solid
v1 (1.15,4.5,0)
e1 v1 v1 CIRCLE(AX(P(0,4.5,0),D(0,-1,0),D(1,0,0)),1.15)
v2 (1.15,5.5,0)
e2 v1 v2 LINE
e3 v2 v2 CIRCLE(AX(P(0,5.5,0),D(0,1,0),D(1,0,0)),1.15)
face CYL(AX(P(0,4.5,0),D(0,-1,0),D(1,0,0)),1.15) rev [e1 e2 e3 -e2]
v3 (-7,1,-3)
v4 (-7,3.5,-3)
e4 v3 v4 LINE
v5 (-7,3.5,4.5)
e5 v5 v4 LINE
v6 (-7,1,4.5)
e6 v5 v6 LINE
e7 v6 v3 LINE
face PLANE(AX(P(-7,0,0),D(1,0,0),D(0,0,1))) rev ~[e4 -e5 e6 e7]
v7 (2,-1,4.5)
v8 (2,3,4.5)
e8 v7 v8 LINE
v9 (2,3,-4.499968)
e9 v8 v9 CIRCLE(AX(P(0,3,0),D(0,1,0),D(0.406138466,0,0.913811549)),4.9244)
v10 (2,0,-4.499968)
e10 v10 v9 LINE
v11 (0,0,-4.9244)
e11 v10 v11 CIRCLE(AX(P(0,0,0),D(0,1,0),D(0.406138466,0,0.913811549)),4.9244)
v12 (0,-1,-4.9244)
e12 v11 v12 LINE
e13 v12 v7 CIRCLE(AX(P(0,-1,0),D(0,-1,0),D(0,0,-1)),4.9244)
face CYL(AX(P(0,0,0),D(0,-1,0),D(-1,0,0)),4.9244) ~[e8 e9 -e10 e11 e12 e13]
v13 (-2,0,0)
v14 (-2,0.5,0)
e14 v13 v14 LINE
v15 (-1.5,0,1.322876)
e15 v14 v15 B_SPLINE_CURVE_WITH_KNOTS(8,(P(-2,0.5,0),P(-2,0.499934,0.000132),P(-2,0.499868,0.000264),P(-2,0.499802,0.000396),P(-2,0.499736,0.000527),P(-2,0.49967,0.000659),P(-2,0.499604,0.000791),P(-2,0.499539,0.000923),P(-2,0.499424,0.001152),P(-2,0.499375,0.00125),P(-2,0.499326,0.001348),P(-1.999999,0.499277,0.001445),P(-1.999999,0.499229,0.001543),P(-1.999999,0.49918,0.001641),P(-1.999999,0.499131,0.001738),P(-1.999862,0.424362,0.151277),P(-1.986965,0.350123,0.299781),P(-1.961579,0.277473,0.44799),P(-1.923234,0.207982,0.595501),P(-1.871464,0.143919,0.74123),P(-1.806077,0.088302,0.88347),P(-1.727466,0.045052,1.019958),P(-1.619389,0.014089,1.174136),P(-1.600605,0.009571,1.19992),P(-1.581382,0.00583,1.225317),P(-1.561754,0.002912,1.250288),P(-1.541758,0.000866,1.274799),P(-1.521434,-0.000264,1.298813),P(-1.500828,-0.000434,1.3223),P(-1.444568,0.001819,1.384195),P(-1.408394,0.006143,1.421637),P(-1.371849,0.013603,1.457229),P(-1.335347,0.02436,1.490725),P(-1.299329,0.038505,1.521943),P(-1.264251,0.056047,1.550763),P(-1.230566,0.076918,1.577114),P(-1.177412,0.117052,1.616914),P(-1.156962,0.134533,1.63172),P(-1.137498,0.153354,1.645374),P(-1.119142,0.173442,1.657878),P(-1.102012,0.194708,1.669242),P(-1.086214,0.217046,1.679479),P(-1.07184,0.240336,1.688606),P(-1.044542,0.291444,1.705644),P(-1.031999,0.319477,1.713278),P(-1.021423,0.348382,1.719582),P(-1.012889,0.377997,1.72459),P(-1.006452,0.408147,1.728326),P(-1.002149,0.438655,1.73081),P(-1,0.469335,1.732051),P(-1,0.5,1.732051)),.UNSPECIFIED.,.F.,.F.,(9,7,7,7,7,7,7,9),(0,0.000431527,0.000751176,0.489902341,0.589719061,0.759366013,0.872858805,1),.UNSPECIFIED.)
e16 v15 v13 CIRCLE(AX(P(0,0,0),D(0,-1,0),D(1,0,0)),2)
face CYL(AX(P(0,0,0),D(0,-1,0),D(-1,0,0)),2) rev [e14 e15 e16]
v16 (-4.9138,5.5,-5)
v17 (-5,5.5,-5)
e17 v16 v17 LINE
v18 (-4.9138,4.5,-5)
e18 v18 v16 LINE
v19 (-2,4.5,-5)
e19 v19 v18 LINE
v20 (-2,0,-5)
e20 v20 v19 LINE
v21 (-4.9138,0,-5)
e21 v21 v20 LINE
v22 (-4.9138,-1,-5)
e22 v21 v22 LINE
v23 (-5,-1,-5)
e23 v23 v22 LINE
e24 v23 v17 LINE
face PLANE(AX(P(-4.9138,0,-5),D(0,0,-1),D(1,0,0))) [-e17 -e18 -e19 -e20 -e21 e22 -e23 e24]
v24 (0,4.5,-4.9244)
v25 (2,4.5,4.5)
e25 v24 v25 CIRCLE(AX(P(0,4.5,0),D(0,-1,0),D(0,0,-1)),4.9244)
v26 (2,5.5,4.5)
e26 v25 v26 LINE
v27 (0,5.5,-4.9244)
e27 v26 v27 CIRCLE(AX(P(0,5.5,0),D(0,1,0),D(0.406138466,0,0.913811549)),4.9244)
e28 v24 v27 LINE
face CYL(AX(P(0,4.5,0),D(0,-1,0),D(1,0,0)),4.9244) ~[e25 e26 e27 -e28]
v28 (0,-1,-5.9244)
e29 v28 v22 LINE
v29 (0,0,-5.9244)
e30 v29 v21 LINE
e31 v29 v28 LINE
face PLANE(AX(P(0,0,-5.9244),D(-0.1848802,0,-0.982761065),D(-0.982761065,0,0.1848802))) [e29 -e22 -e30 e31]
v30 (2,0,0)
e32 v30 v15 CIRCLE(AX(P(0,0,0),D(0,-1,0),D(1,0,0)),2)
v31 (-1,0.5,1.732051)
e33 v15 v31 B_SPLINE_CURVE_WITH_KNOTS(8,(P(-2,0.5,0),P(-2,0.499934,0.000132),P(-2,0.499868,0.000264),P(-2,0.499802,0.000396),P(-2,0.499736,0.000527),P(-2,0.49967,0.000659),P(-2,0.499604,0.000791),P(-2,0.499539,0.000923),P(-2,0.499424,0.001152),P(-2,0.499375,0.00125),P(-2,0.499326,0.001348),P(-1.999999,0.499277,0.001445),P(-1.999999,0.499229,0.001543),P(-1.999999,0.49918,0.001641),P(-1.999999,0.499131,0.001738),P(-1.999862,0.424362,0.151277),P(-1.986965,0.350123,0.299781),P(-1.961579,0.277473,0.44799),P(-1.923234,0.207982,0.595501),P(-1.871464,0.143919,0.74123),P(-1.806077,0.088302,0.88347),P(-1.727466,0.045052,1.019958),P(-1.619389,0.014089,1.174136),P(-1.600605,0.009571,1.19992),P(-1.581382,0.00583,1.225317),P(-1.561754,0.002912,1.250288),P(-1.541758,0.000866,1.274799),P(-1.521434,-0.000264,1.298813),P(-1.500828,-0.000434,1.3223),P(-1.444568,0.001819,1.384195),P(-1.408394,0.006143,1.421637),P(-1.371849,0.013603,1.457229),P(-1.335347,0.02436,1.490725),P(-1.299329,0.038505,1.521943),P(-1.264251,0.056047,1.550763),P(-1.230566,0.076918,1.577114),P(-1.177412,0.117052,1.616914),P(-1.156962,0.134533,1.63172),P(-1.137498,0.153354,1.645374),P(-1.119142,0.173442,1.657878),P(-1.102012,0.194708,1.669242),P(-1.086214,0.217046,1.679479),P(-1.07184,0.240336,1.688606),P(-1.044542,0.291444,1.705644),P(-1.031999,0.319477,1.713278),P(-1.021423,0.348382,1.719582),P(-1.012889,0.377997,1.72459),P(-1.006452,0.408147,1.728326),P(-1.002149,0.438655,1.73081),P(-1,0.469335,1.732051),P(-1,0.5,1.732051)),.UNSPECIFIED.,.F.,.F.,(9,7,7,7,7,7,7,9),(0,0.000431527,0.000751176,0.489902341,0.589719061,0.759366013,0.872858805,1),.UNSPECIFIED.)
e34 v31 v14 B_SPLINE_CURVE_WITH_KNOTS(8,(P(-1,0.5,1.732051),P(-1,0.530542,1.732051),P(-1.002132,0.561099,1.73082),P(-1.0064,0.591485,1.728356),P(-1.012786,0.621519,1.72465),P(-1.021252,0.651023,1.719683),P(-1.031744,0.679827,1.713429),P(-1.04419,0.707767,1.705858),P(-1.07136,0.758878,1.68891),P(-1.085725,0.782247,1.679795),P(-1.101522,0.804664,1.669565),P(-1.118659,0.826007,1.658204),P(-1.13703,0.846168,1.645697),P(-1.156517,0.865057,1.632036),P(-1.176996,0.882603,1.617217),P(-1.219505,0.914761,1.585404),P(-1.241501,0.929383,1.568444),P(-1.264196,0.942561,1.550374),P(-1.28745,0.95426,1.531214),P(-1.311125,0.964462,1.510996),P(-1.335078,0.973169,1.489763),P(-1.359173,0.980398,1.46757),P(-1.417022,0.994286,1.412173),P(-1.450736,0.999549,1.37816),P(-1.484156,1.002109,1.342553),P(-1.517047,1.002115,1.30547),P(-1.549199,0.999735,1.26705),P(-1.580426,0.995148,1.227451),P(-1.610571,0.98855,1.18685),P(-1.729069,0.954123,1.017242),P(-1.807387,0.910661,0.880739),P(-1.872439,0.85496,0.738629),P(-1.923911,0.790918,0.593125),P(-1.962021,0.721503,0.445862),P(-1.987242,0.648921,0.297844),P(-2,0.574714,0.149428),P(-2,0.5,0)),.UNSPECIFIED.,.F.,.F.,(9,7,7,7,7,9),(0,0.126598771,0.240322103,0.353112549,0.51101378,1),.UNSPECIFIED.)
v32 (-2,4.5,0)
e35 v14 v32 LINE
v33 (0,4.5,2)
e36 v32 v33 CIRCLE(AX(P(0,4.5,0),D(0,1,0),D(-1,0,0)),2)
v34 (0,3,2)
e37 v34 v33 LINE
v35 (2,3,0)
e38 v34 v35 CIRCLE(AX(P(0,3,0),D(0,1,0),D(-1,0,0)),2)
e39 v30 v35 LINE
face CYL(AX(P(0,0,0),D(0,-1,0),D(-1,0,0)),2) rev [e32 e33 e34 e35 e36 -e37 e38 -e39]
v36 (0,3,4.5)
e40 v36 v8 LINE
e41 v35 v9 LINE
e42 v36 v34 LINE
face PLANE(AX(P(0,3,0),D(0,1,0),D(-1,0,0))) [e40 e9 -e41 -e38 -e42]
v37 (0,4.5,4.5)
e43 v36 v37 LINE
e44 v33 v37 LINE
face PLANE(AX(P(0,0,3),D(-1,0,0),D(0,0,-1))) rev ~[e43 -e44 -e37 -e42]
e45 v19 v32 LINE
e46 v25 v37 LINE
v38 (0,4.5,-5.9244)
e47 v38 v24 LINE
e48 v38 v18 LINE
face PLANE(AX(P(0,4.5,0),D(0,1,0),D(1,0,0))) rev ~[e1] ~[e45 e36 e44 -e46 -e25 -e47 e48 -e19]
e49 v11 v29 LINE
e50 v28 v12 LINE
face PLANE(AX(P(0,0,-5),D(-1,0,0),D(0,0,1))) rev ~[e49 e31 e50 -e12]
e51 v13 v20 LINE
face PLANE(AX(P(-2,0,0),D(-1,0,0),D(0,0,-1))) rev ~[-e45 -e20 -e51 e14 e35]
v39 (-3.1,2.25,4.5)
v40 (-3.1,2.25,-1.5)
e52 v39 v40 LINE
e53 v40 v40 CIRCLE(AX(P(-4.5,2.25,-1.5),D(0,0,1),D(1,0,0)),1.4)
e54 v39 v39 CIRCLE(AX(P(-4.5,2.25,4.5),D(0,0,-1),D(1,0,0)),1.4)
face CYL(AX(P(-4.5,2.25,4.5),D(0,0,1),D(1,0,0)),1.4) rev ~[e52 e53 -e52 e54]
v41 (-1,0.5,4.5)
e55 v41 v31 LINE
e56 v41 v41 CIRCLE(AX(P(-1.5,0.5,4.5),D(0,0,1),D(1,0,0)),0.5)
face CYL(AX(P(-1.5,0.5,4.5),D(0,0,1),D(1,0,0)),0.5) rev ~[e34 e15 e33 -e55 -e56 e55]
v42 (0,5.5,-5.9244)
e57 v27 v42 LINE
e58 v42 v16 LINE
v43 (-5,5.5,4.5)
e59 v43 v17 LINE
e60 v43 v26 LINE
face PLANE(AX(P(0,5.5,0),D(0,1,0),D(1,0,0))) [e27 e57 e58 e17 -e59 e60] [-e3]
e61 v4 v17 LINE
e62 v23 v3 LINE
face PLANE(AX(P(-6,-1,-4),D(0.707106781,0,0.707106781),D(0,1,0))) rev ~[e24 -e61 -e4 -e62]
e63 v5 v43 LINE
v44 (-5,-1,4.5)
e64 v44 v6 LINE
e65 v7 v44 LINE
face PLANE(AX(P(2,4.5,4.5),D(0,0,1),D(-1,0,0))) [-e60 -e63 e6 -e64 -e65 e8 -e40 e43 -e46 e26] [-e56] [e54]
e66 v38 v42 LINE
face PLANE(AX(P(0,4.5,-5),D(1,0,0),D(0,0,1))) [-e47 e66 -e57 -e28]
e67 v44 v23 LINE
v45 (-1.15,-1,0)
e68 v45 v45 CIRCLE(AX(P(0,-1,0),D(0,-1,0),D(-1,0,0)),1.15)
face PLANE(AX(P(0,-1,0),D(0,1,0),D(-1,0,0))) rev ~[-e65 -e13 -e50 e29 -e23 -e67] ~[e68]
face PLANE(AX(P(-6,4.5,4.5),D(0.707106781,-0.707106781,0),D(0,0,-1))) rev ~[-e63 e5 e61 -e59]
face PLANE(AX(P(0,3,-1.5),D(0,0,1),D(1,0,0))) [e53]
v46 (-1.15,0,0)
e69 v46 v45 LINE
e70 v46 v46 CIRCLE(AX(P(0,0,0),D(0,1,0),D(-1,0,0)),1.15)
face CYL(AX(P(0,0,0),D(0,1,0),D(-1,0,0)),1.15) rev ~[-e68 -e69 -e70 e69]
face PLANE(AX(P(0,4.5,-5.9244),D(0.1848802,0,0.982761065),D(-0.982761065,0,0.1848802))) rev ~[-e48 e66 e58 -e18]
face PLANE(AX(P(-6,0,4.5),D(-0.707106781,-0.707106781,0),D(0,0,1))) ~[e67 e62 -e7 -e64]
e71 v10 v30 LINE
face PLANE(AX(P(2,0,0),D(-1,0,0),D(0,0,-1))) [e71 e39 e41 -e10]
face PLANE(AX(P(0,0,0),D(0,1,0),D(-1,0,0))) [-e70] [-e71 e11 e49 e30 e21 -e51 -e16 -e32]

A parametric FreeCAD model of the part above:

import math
import FreeCAD as App
import Part
import Sketcher

V = App.Vector
Q = App.Units.Quantity


def edges_at(feature, points):
    """Names of the edges that pass closest to the given points."""
    edges = feature.Shape.Edges
    near = lambda p: min(range(len(edges)), key=lambda i: edges[i].distToShape(Part.Vertex(*p))[0])
    return sorted({f"Edge{near(p) + 1}" for p in points})

doc = App.newDocument("Part")
params = doc.addObject("Spreadsheet::Sheet", "Params")
for row, (alias, value) in enumerate([
    ("sketch1_radius", "2 mm"),
    ("sketch1_width", "5 mm"),
    ("pad1_length", "4.5 mm"),
    ("sketch2_radius", "2 mm"),
    ("sketch2_height", "4.5 mm"),
    ("pad2_length", "3 mm"),
    ("sketch3_diameter", "2.3 mm"),
    ("sketch3_height", "1 mm"),
    ("sketch3_length", "5 mm"),
    ("sketch3_width", "9 mm"),
    ("pad3_length", "1 mm"),
    ("sketch4_length", "5 mm"),
    ("sketch4_diameter", "2.3 mm"),
    ("sketch4_width", "9 mm"),
    ("sketch4_height", "1 mm"),
    ("sketch4_height2", "9.5 mm"),
    ("pad4_length", "1 mm"),
    ("sketch5_diameter", "1 mm"),
    ("sketch5_diameter2", "2.8 mm"),
    ("pocket1_length", "6 mm"),
    ("chamfer_size", "2 mm"),
], start=1):
    params.set(f"A{row}", alias)
    params.set(f"B{row}", "=" + value)
    params.setAlias(f"B{row}", alias)

body = doc.addObject("PartDesign::Body", "Body")

# Sketch on XZ plane
sketch1 = body.newObject("Sketcher::SketchObject", "Sketch")
sketch1.AttachmentSupport = (doc.getObject("XZ_Plane"), [""])
sketch1.MapMode = "FlatFace"
sketch1.addGeometry(Part.ArcOfCircle(Part.Circle(V(0, 0, 0), V(0, 0, 1), 2), math.radians(90), math.radians(180)), False)
sketch1.addGeometry(Part.LineSegment(V(-2, 0, 0), V(-2, -5, 0)), False)
sketch1.addGeometry(Part.LineSegment(V(-2, -5, 0), V(-7, -5, 0)), False)
sketch1.addGeometry(Part.LineSegment(V(-7, -5, 0), V(-7, 4.5, 0)), False)
sketch1.addGeometry(Part.LineSegment(V(-7, 4.5, 0), V(0, 4.5, 0)), False)
sketch1.addGeometry(Part.LineSegment(V(0, 4.5, 0), V(0, 2, 0)), False)
sketch1.addConstraint(Sketcher.Constraint("Tangent", 0, 2, 1, 1))
sketch1.addConstraint(Sketcher.Constraint("Coincident", 1, 2, 2, 1))
sketch1.addConstraint(Sketcher.Constraint("Coincident", 2, 2, 3, 1))
sketch1.addConstraint(Sketcher.Constraint("Coincident", 3, 2, 4, 1))
sketch1.addConstraint(Sketcher.Constraint("Coincident", 4, 2, 5, 1))
sketch1.addConstraint(Sketcher.Constraint("Coincident", 5, 2, 0, 1))
sketch1.addConstraint(Sketcher.Constraint("Vertical", 1))
sketch1.addConstraint(Sketcher.Constraint("Horizontal", 2))
sketch1.addConstraint(Sketcher.Constraint("Vertical", 3))
sketch1.addConstraint(Sketcher.Constraint("Horizontal", 4))
sketch1.addConstraint(Sketcher.Constraint("Vertical", 5))
sketch1.addConstraint(Sketcher.Constraint("Coincident", 0, 3, -1, 1))
sketch1.addConstraint(Sketcher.Constraint("PointOnObject", 4, 2, -2))
sketch1.addConstraint(Sketcher.Constraint("Equal", 2, 1))
sketch1.addConstraint(Sketcher.Constraint("Radius", 0, Q("2 mm")))
sketch1.addConstraint(Sketcher.Constraint("DistanceX", 2, 2, 2, 1, Q("5 mm")))
sketch1.addConstraint(Sketcher.Constraint("DistanceY", -1, 1, 3, 2, Q("4.5 mm")))
sketch1.setExpression("Constraints[14]", "Params.sketch1_radius")
sketch1.setExpression("Constraints[15]", "Params.sketch1_width")
pad1 = body.newObject("PartDesign::Pad", "Pad")
pad1.Profile = sketch1
pad1.setExpression("Length", "Params.pad1_length")
pad1.Reversed = True

# Sketch on XZ plane
sketch2 = body.newObject("Sketcher::SketchObject", "Sketch001")
sketch2.AttachmentSupport = (doc.getObject("XZ_Plane"), [""])
sketch2.MapMode = "FlatFace"
sketch2.addGeometry(Part.ArcOfCircle(Part.Circle(V(0, 0, 0), V(0, 0, 1), 2), math.radians(0), math.radians(90)), False)
sketch2.addGeometry(Part.LineSegment(V(0, 2, 0), V(0, 4.5, 0)), False)
sketch2.addGeometry(Part.LineSegment(V(0, 4.5, 0), V(2, 4.5, 0)), False)
sketch2.addGeometry(Part.ArcOfCircle(Part.Circle(V(0, 0, 0), V(0, 0, 1), 4.9), math.radians(-66), math.radians(66)), False)
sketch2.addGeometry(Part.LineSegment(V(2, -4.5, 0), V(2, 0, 0)), False)
sketch2.addConstraint(Sketcher.Constraint("Coincident", 0, 2, 1, 1))
sketch2.addConstraint(Sketcher.Constraint("Coincident", 1, 2, 2, 1))
sketch2.addConstraint(Sketcher.Constraint("Coincident", 2, 2, 3, 2))
sketch2.addConstraint(Sketcher.Constraint("Coincident", 3, 1, 4, 1))
sketch2.addConstraint(Sketcher.Constraint("Tangent", 4, 2, 0, 1))
sketch2.addConstraint(Sketcher.Constraint("Vertical", 1))
sketch2.addConstraint(Sketcher.Constraint("Horizontal", 2))
sketch2.addConstraint(Sketcher.Constraint("Vertical", 4))
sketch2.addConstraint(Sketcher.Constraint("Coincident", 0, 3, -1, 1))
sketch2.addConstraint(Sketcher.Constraint("Coincident", 3, 3, -1, 1))
sketch2.addConstraint(Sketcher.Constraint("PointOnObject", 0, 2, -2))
sketch2.addConstraint(Sketcher.Constraint("Vertical", 2, 2, 3, 1))
sketch2.addConstraint(Sketcher.Constraint("Radius", 0, Q("2 mm")))
sketch2.addConstraint(Sketcher.Constraint("DistanceY", 4, 1, 4, 2, Q("4.5 mm")))
sketch2.setExpression("Constraints[12]", "Params.sketch2_radius")
sketch2.setExpression("Constraints[13]", "Params.sketch2_height")
pad2 = body.newObject("PartDesign::Pad", "Pad001")
pad2.Profile = sketch2
pad2.setExpression("Length", "Params.pad2_length")
pad2.Reversed = True

# Sketch on XZ plane
sketch3 = body.newObject("Sketcher::SketchObject", "Sketch002")
sketch3.AttachmentSupport = (doc.getObject("XZ_Plane"), [""])
sketch3.MapMode = "FlatFace"
sketch3.addGeometry(Part.ArcOfCircle(Part.Circle(V(0, 0, 0), V(0, 0, 1), 4.9), math.radians(-90), math.radians(66)), False)
sketch3.addGeometry(Part.LineSegment(V(0, -4.9, 0), V(0, -5.9, 0)), False)
sketch3.addGeometry(Part.LineSegment(V(0, -5.9, 0), V(-4.9, -5, 0)), False)
sketch3.addGeometry(Part.LineSegment(V(-4.9, -5, 0), V(-7, -5, 0)), False)
sketch3.addGeometry(Part.LineSegment(V(-7, -5, 0), V(-7, 4.5, 0)), False)
sketch3.addGeometry(Part.LineSegment(V(-7, 4.5, 0), V(2, 4.5, 0)), False)
sketch3.addGeometry(Part.Circle(V(0, 0, 0), V(0, 0, 1), 1.1), False)
sketch3.addConstraint(Sketcher.Constraint("Coincident", 0, 1, 1, 1))
sketch3.addConstraint(Sketcher.Constraint("Coincident", 1, 2, 2, 1))
sketch3.addConstraint(Sketcher.Constraint("Coincident", 2, 2, 3, 1))
sketch3.addConstraint(Sketcher.Constraint("Coincident", 3, 2, 4, 1))
sketch3.addConstraint(Sketcher.Constraint("Coincident", 4, 2, 5, 1))
sketch3.addConstraint(Sketcher.Constraint("Coincident", 5, 2, 0, 2))
sketch3.addConstraint(Sketcher.Constraint("Vertical", 1))
sketch3.addConstraint(Sketcher.Constraint("Horizontal", 3))
sketch3.addConstraint(Sketcher.Constraint("Vertical", 4))
sketch3.addConstraint(Sketcher.Constraint("Horizontal", 5))
sketch3.addConstraint(Sketcher.Constraint("Coincident", 0, 3, -1, 1))
sketch3.addConstraint(Sketcher.Constraint("Coincident", 6, 3, -1, 1))
sketch3.addConstraint(Sketcher.Constraint("PointOnObject", 0, 1, -2))
sketch3.addConstraint(Sketcher.Constraint("Diameter", 6, Q("2.3 mm")))
sketch3.addConstraint(Sketcher.Constraint("DistanceY", 1, 2, 1, 1, Q("1 mm")))
sketch3.addConstraint(Sketcher.Constraint("Distance", 2, Q("5 mm")))
sketch3.addConstraint(Sketcher.Constraint("DistanceY", 2, 2, -1, 1, Q("5 mm")))
sketch3.addConstraint(Sketcher.Constraint("DistanceX", 3, 2, -1, 1, Q("7 mm")))
sketch3.addConstraint(Sketcher.Constraint("DistanceY", -1, 1, 4, 2, Q("4.5 mm")))
sketch3.addConstraint(Sketcher.Constraint("DistanceX", 5, 1, 5, 2, Q("9 mm")))
sketch3.setExpression("Constraints[13]", "Params.sketch3_diameter")
sketch3.setExpression("Constraints[14]", "Params.sketch3_height")
sketch3.setExpression("Constraints[15]", "Params.sketch3_length")
sketch3.setExpression("Constraints[19]", "Params.sketch3_width")
pad3 = body.newObject("PartDesign::Pad", "Pad002")
pad3.Profile = sketch3
pad3.setExpression("Length", "Params.pad3_length")

# Sketch on XZ plane
sketch4 = body.newObject("Sketcher::SketchObject", "Sketch003")
sketch4.AttachmentSupport = (doc.getObject("XZ_Plane"), [""])
sketch4.MapMode = "FlatFace"
sketch4.AttachmentOffset = App.Placement(V(0, 0, -4.5), App.Rotation())
sketch4.addGeometry(Part.ArcOfCircle(Part.Circle(V(0, 0, 0), V(0, 0, 1), 4.9), math.radians(-90), math.radians(66)), False)
sketch4.addGeometry(Part.LineSegment(V(0, -4.9, 0), V(0, -5.9, 0)), False)
sketch4.addGeometry(Part.LineSegment(V(0, -5.9, 0), V(-4.9, -5, 0)), False)
sketch4.addGeometry(Part.LineSegment(V(-4.9, -5, 0), V(-7, -5, 0)), False)
sketch4.addGeometry(Part.LineSegment(V(-7, -5, 0), V(-7, 4.5, 0)), False)
sketch4.addGeometry(Part.LineSegment(V(-7, 4.5, 0), V(2, 4.5, 0)), False)
sketch4.addGeometry(Part.Circle(V(0, 0, 0), V(0, 0, 1), 1.1), False)
sketch4.addConstraint(Sketcher.Constraint("Coincident", 0, 1, 1, 1))
sketch4.addConstraint(Sketcher.Constraint("Coincident", 1, 2, 2, 1))
sketch4.addConstraint(Sketcher.Constraint("Coincident", 2, 2, 3, 1))
sketch4.addConstraint(Sketcher.Constraint("Coincident", 3, 2, 4, 1))
sketch4.addConstraint(Sketcher.Constraint("Coincident", 4, 2, 5, 1))
sketch4.addConstraint(Sketcher.Constraint("Coincident", 5, 2, 0, 2))
sketch4.addConstraint(Sketcher.Constraint("Vertical", 1))
sketch4.addConstraint(Sketcher.Constraint("Horizontal", 3))
sketch4.addConstraint(Sketcher.Constraint("Vertical", 4))
sketch4.addConstraint(Sketcher.Constraint("Horizontal", 5))
sketch4.addConstraint(Sketcher.Constraint("Coincident", 0, 3, -1, 1))
sketch4.addConstraint(Sketcher.Constraint("Coincident", 6, 3, -1, 1))
sketch4.addConstraint(Sketcher.Constraint("PointOnObject", 0, 1, -2))
sketch4.addConstraint(Sketcher.Constraint("Distance", 2, Q("5 mm")))
sketch4.addConstraint(Sketcher.Constraint("DistanceY", 2, 2, -1, 1, Q("5 mm")))
sketch4.addConstraint(Sketcher.Constraint("Diameter", 6, Q("2.3 mm")))
sketch4.addConstraint(Sketcher.Constraint("DistanceX", 5, 1, 5, 2, Q("9 mm")))
sketch4.addConstraint(Sketcher.Constraint("DistanceY", 1, 2, 1, 1, Q("1 mm")))
sketch4.addConstraint(Sketcher.Constraint("DistanceY", 4, 1, 4, 2, Q("9.5 mm")))
sketch4.addConstraint(Sketcher.Constraint("DistanceX", 3, 2, -1, 1, Q("7 mm")))
sketch4.setExpression("Constraints[13]", "Params.sketch4_length")
sketch4.setExpression("Constraints[15]", "Params.sketch4_diameter")
sketch4.setExpression("Constraints[16]", "Params.sketch4_width")
sketch4.setExpression("Constraints[17]", "Params.sketch4_height")
sketch4.setExpression("Constraints[18]", "Params.sketch4_height2")
pad4 = body.newObject("PartDesign::Pad", "Pad003")
pad4.Profile = sketch4
pad4.setExpression("Length", "Params.pad4_length")
pad4.Reversed = True

# Sketch on XY plane
sketch5 = body.newObject("Sketcher::SketchObject", "Sketch004")
sketch5.AttachmentSupport = (doc.getObject("XY_Plane"), [""])
sketch5.MapMode = "FlatFace"
sketch5.AttachmentOffset = App.Placement(V(0, 0, 4.5), App.Rotation())
sketch5.addGeometry(Part.Circle(V(-4.5, 2.2, 0), V(0, 0, 1), 1.4), False)
sketch5.addGeometry(Part.Circle(V(-1.5, 0.5, 0), V(0, 0, 1), 0.5), False)
sketch5.addConstraint(Sketcher.Constraint("Diameter", 1, Q("1 mm")))
sketch5.addConstraint(Sketcher.Constraint("Diameter", 0, Q("2.8 mm")))
sketch5.addConstraint(Sketcher.Constraint("DistanceX", 1, 3, -1, 1, Q("1.5 mm")))
sketch5.addConstraint(Sketcher.Constraint("DistanceY", -1, 1, 1, 3, Q("0.5 mm")))
sketch5.addConstraint(Sketcher.Constraint("DistanceX", 0, 3, 1, 3, Q("3 mm")))
sketch5.addConstraint(Sketcher.Constraint("DistanceY", -1, 1, 0, 3, Q("2.25 mm")))
sketch5.setExpression("Constraints[0]", "Params.sketch5_diameter")
sketch5.setExpression("Constraints[1]", "Params.sketch5_diameter2")
pocket1 = body.newObject("PartDesign::Pocket", "Pocket")
pocket1.Profile = sketch5
pocket1.setExpression("Length", "Params.pocket1_length")
doc.recompute()

chamfer = body.newObject("PartDesign::Chamfer", "Chamfer")
chamfer.Base = (pocket1, edges_at(pocket1, [(-7, 5.5, -0.25), (-7, -1, -0.25), (-7, 2.25, -5)]))
chamfer.setExpression("Size", "Params.chamfer_size")

doc.recompute()
